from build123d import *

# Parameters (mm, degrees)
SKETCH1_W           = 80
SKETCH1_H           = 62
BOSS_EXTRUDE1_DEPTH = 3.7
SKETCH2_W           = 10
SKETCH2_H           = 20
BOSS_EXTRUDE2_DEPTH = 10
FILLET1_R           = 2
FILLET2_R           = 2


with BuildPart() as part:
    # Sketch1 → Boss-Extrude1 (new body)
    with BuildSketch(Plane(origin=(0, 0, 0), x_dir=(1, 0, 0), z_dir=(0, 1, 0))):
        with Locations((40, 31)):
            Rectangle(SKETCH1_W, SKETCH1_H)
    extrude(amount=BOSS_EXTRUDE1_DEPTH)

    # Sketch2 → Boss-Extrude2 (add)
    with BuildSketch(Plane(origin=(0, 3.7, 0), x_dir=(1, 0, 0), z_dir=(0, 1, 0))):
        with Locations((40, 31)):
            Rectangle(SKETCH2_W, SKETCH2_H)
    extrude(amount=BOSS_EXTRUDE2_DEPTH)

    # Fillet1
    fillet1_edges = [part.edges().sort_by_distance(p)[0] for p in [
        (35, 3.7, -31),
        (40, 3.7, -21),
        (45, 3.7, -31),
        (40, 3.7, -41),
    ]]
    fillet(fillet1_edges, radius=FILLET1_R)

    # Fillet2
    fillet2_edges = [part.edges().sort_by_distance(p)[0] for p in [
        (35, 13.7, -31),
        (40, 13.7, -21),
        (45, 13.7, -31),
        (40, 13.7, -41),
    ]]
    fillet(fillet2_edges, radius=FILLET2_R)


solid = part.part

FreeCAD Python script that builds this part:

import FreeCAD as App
import Part
import Sketcher
Q = App.Units.Quantity


def edges_at(feature, points):
    """Names of the edges that pass closest to the given points."""
    edges = feature.Shape.Edges
    near = lambda p: min(range(len(edges)), key=lambda i: edges[i].distToShape(Part.Vertex(*p))[0])
    return sorted({f"Edge{near(p) + 1}" for p in points})


def add_polygon(sketch, points):
    """Adds a closed chain of lines whose ends are joined by coincident constraints."""
    first, n = sketch.GeometryCount, len(points)
    for a, b in zip(points, points[1:] + points[:1]):
        sketch.addGeometry(Part.LineSegment(App.Vector(*a, 0), App.Vector(*b, 0)), False)
    for i in range(n):
        sketch.addConstraint(Sketcher.Constraint("Coincident", first + i, 2, first + (i + 1) % n, 1))

doc = App.newDocument("Part")
body = doc.addObject("PartDesign::Body", "Body")

# Sketch on XZ plane
sketch1 = doc.addObject("Sketcher::SketchObject", "Sketch")
body.addObject(sketch1)
sketch1.AttachmentSupport = (doc.XZ_Plane, [""])
sketch1.MapMode = "FlatFace"
add_polygon(sketch1, [(0, -62), (0, 0), (80, 0), (80, -62)])  # lines 0-3
sketch1.addConstraint(Sketcher.Constraint("Vertical", 0))
sketch1.addConstraint(Sketcher.Constraint("Horizontal", 1))
sketch1.addConstraint(Sketcher.Constraint("Vertical", 2))
sketch1.addConstraint(Sketcher.Constraint("Horizontal", 3))
sketch1.addConstraint(Sketcher.Constraint("Coincident", 0, 2, -1, 1))
sketch1.addConstraint(Sketcher.Constraint("DistanceX", 1, 1, 1, 2, Q("80 mm")))
sketch1.addConstraint(Sketcher.Constraint("DistanceY", 0, 1, 0, 2, Q("62 mm")))
pad1 = doc.addObject("PartDesign::Pad", "Pad")
body.addObject(pad1)
pad1.Profile = sketch1
pad1.Length = 3.7
pad1.Reversed = True

# Sketch on XZ plane
sketch2 = doc.addObject("Sketcher::SketchObject", "Sketch001")
body.addObject(sketch2)
sketch2.AttachmentSupport = (doc.XZ_Plane, [""])
sketch2.MapMode = "FlatFace"
sketch2.AttachmentOffset = App.Placement(App.Vector(0, 0, -3.7), App.Rotation())
add_polygon(sketch2, [(35, -41), (35, -21), (45, -21), (45, -41)])  # lines 0-3
sketch2.addConstraint(Sketcher.Constraint("Vertical", 0))
sketch2.addConstraint(Sketcher.Constraint("Horizontal", 1))
sketch2.addConstraint(Sketcher.Constraint("Vertical", 2))
sketch2.addConstraint(Sketcher.Constraint("Horizontal", 3))
sketch2.addConstraint(Sketcher.Constraint("DistanceX", 1, 1, 1, 2, Q("10 mm")))
sketch2.addConstraint(Sketcher.Constraint("DistanceY", 0, 1, 0, 2, Q("20 mm")))
sketch2.addConstraint(Sketcher.Constraint("DistanceX", -1, 1, 0, 2, Q("35 mm")))
sketch2.addConstraint(Sketcher.Constraint("DistanceY", 0, 2, -1, 1, Q("21 mm")))
pad2 = doc.addObject("PartDesign::Pad", "Pad001")
body.addObject(pad2)
pad2.Profile = sketch2
pad2.Length = 10
pad2.Reversed = True
doc.recompute()

fillet = doc.addObject("PartDesign::Fillet", "Fillet")
body.addObject(fillet)
fillet.Base = (pad2, edges_at(pad2, [
    (35, 3.7, -31),
    (40, 3.7, -21),
    (45, 3.7, -31),
    (40, 3.7, -41),
]))
fillet.Radius = 2
doc.recompute()

fillet2 = doc.addObject("PartDesign::Fillet", "Fillet001")
body.addObject(fillet2)
fillet2.Base = (fillet, edges_at(fillet, [
    (35, 13.7, -31),
    (40, 13.7, -21),
    (45, 13.7, -31),
    (40, 13.7, -41),
]))
fillet2.Radius = 2

doc.recompute()
